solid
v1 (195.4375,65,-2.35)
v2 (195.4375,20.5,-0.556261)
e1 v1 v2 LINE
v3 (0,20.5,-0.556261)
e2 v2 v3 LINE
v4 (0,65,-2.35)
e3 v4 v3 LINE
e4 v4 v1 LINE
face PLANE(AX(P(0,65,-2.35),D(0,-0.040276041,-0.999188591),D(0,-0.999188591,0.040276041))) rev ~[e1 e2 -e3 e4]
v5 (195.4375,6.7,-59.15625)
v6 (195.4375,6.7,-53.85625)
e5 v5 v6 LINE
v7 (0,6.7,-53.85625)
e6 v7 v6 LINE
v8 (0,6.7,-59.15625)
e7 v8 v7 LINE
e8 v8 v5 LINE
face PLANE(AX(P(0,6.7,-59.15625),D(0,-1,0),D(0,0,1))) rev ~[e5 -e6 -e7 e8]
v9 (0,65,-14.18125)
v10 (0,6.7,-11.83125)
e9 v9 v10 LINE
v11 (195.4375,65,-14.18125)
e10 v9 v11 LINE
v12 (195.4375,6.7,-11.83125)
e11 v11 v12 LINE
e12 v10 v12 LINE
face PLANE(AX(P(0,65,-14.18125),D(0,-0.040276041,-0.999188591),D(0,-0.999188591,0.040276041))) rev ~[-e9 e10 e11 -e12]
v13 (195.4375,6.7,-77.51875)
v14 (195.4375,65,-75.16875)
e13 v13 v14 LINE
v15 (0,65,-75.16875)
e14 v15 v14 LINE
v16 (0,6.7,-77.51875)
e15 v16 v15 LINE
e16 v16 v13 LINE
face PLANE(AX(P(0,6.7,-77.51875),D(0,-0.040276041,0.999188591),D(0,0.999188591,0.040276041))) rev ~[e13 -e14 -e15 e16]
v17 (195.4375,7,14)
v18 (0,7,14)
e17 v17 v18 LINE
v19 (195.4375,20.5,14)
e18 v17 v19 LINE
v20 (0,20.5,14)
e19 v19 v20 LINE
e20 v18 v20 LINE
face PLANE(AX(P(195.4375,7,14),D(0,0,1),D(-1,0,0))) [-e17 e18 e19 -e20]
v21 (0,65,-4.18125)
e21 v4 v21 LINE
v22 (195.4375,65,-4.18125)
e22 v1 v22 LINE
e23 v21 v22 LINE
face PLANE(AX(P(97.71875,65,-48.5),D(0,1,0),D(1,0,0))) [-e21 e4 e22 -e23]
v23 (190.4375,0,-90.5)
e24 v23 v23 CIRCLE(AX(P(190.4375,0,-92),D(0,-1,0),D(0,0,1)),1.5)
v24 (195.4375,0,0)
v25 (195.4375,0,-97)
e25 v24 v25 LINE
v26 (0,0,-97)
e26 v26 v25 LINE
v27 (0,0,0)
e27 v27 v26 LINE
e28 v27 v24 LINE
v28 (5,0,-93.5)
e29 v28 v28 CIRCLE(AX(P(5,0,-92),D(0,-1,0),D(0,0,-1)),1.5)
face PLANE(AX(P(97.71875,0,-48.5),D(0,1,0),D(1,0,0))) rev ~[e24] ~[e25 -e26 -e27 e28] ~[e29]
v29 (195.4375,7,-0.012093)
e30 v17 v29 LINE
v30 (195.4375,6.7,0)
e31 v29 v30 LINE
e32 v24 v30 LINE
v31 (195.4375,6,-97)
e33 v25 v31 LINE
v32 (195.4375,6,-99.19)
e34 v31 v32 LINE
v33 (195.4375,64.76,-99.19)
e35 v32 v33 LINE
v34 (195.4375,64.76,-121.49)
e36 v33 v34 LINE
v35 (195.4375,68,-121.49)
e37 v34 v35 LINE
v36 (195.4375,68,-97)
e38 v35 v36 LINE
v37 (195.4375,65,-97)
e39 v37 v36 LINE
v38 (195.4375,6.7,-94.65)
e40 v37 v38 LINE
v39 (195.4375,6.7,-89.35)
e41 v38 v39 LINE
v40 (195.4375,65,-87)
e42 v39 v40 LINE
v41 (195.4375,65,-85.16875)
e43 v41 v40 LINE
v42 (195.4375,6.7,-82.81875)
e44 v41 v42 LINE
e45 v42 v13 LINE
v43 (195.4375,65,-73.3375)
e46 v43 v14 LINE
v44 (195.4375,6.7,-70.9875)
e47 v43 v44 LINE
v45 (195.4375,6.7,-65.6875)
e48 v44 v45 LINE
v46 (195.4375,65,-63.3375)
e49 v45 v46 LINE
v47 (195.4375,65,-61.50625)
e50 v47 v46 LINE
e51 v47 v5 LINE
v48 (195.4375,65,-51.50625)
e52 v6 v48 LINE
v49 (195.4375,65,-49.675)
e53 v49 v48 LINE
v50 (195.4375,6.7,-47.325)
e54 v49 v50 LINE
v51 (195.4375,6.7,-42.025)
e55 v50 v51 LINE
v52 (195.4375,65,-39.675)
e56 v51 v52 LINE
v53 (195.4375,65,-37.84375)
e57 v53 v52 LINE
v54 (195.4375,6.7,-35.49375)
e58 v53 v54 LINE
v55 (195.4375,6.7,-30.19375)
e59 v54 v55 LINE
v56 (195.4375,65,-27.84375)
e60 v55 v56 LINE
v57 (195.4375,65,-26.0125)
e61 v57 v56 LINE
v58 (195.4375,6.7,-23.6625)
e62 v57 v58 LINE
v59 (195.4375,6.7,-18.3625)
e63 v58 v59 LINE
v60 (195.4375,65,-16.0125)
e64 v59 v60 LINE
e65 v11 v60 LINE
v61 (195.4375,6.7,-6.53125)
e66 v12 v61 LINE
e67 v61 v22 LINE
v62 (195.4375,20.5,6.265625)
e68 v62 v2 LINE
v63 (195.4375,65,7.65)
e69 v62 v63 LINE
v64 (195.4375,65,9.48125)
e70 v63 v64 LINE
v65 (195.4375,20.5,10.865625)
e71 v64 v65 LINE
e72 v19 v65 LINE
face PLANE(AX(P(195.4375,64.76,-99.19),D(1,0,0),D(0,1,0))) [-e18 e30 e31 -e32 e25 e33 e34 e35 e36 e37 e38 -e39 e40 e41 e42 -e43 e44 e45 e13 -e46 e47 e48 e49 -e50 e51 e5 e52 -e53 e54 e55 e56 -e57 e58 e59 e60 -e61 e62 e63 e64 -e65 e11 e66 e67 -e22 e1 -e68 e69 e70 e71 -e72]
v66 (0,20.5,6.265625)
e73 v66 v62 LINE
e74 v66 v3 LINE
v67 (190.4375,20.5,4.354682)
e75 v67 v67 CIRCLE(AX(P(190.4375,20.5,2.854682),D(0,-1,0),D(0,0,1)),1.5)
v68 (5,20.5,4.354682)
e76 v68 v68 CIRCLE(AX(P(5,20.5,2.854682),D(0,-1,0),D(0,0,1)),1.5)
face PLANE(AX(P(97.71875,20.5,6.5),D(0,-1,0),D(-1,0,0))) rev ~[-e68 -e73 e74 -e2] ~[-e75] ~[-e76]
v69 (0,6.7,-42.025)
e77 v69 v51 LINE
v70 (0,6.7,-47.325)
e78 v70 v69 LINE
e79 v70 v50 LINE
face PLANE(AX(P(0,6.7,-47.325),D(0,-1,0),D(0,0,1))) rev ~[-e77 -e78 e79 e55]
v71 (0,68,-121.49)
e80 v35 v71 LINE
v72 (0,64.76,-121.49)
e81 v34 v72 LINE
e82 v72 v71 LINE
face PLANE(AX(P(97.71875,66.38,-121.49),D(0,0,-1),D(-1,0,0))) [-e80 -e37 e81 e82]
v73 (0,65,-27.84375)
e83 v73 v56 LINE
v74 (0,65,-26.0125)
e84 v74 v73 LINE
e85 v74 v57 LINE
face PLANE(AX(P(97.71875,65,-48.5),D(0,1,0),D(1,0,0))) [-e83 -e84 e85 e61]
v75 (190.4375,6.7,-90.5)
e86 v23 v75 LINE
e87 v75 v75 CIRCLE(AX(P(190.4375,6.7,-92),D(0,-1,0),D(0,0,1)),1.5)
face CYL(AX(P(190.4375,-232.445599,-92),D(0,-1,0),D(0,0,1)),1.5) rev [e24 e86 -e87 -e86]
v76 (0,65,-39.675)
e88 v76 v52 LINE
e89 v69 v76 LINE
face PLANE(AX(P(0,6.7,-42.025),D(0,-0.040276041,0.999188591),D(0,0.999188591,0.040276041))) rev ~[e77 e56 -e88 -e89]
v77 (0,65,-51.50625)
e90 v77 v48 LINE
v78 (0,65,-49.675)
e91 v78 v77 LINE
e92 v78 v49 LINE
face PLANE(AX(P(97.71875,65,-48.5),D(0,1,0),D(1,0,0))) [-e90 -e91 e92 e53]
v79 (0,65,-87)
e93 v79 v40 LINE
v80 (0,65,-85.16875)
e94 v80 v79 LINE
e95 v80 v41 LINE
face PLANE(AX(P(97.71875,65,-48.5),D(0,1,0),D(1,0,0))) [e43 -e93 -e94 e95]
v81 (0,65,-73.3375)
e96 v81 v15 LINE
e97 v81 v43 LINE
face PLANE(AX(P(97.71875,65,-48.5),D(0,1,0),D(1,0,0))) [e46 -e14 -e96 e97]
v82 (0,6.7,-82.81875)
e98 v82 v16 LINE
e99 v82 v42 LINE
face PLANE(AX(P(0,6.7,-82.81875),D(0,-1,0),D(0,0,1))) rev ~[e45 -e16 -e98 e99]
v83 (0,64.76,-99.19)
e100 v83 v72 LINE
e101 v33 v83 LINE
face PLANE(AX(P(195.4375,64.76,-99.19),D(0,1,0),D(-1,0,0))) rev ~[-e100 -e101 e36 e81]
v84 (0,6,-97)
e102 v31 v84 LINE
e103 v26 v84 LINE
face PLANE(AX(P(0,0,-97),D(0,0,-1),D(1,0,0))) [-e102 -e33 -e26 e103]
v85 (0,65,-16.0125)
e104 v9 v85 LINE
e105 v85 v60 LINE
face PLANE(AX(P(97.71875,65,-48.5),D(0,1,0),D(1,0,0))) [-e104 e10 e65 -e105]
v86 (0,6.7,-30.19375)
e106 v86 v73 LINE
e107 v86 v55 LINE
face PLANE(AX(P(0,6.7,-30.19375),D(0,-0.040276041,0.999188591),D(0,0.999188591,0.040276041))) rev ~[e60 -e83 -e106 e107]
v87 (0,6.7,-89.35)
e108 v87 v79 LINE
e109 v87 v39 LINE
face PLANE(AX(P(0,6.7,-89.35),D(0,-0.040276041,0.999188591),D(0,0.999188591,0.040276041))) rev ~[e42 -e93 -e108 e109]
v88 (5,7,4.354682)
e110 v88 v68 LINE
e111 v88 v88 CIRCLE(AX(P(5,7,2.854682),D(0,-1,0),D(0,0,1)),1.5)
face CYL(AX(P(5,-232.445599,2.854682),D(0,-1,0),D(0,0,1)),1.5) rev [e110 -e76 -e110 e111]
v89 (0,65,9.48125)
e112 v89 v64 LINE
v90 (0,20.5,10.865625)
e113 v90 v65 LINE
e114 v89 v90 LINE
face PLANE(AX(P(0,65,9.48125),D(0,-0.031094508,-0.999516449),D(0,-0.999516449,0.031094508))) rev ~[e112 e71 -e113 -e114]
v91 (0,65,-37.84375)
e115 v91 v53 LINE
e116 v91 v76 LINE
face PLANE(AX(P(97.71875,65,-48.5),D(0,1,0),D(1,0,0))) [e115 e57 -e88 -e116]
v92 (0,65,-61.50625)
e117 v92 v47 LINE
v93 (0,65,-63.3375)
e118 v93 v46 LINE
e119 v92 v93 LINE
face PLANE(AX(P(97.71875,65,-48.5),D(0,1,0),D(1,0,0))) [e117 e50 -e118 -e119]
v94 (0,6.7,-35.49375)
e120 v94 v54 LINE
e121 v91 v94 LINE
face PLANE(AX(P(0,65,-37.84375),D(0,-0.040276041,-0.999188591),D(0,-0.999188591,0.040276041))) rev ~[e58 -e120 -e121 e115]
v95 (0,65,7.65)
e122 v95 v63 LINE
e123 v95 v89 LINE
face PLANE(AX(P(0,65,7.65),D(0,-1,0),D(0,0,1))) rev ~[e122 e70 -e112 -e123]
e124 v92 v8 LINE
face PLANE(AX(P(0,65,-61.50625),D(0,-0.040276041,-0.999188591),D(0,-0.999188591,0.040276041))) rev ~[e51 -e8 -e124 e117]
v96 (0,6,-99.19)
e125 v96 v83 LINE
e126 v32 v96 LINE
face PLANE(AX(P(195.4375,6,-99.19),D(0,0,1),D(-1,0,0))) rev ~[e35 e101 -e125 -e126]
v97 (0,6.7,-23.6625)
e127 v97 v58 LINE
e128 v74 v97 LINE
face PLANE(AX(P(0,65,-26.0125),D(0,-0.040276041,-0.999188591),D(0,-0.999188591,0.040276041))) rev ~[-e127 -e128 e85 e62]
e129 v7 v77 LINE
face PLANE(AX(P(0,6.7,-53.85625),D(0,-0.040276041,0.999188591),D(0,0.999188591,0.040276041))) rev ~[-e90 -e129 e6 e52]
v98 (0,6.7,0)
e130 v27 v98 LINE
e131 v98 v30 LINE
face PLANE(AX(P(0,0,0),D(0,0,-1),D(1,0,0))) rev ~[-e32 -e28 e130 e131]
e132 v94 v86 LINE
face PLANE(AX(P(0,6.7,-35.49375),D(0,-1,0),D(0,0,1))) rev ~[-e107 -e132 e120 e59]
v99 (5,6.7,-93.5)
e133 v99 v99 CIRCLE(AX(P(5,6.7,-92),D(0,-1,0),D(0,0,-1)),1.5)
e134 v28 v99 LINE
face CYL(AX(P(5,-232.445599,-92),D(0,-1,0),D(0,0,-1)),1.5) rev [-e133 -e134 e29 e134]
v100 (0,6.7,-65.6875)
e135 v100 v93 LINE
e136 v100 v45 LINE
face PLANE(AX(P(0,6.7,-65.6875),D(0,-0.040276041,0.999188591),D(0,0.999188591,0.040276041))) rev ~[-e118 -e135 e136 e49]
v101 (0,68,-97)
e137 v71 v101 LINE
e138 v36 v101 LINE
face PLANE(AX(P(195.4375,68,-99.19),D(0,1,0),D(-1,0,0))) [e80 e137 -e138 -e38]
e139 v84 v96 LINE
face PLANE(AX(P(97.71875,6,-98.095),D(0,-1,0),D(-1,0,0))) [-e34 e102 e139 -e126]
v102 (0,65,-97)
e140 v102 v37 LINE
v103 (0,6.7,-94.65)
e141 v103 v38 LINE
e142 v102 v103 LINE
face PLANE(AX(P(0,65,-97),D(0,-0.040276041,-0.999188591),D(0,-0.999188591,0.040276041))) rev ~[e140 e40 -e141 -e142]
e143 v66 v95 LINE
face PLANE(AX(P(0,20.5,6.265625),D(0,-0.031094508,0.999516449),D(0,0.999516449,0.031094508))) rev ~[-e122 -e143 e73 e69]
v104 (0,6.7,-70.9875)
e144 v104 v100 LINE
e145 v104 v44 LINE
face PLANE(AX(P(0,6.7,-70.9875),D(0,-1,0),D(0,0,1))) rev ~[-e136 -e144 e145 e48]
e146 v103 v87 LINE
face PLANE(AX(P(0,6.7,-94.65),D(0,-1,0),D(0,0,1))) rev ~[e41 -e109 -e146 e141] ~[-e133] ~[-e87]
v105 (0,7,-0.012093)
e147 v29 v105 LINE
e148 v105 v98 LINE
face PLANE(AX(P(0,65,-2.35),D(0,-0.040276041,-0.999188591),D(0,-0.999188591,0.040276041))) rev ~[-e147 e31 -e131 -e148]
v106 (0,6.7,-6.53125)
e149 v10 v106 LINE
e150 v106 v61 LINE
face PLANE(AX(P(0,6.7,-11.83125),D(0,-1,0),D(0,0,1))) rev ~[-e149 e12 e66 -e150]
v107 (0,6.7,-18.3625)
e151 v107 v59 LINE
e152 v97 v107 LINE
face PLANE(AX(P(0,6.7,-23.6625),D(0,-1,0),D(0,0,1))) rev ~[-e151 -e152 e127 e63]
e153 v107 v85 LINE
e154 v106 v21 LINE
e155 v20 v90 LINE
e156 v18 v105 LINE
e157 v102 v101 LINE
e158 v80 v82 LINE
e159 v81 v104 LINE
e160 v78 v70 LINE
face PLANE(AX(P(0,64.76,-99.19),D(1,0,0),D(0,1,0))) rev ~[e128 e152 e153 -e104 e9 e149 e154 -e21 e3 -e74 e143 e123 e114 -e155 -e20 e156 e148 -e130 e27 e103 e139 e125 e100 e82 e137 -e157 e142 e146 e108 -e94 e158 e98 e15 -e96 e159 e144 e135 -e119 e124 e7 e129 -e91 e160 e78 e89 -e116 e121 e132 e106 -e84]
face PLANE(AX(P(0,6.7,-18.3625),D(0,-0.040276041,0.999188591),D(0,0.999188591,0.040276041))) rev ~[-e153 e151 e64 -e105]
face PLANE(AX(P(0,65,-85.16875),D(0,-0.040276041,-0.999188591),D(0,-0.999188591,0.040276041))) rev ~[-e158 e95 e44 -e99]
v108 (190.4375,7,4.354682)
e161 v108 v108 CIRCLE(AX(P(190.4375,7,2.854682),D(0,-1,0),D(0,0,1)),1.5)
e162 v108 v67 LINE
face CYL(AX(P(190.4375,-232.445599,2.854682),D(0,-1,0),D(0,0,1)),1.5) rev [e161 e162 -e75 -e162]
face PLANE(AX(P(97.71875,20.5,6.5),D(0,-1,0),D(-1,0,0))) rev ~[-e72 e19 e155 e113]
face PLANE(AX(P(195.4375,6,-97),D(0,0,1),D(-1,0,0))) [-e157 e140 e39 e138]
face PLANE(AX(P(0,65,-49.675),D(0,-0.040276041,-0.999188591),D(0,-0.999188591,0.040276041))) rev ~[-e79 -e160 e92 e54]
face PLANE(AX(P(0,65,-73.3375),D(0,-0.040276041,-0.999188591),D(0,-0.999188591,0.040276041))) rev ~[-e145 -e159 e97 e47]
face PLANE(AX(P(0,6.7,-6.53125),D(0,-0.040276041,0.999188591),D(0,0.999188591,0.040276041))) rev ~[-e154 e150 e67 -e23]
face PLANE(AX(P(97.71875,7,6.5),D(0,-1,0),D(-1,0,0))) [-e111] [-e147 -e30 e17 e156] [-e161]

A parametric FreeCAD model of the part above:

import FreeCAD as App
import Part
import Sketcher
from FreeCAD import Vector
Q = App.Units.Quantity


def add_polygon(sketch, points):
    """Adds a closed chain of lines whose ends are joined by coincident constraints."""
    first, n = sketch.GeometryCount, len(points)
    for a, b in zip(points, points[1:] + points[:1]):
        sketch.addGeometry(Part.LineSegment(App.Vector(*a, 0), App.Vector(*b, 0)), False)
    for i in range(n):
        sketch.addConstraint(Sketcher.Constraint("Coincident", first + i, 2, first + (i + 1) % n, 1))

doc = App.newDocument("Part")
body = doc.addObject("PartDesign::Body", "Body")

sketch1 = body.newObject("Sketcher::SketchObject", "Sketch")
sketch1.AttachmentSupport = (doc.getObject("XZ_Plane"), [""])
sketch1.MapMode = "FlatFace"
add_polygon(sketch1, [(0, -97), (0, 0), (195.4375, 0), (195.4375, -97)])
sketch1.addConstraint([
    Sketcher.Constraint("Vertical", 0),
    Sketcher.Constraint("Horizontal", 1),
    Sketcher.Constraint("Vertical", 2),
    Sketcher.Constraint("Horizontal", 3),
    Sketcher.Constraint("Coincident", 0, 2, -1, 1),
    Sketcher.Constraint("DistanceY", 0, 1, 0, 2, Q("97 mm")),
    Sketcher.Constraint("DistanceX", 1, 1, 1, 2, Q("195.4375 mm")),
])
pad1 = body.newObject("PartDesign::Pad", "Pad")
pad1.Profile = sketch1
pad1.Length = 65
pad1.Reversed = True

sketch2 = body.newObject("Sketcher::SketchObject", "Sketch001")
sketch2.AttachmentSupport = (doc.getObject("YZ_Plane"), [""])
sketch2.MapMode = "FlatFace"
add_polygon(sketch2, [(65, -97), (6.7, -94.65), (6.7, -89.35), (65, -87)])
add_polygon(sketch2, [(65, -75.16875), (65, -85.16875), (6.7, -82.81875), (6.7, -77.51875)])
add_polygon(sketch2, [(65, -63.3375), (65, -73.3375), (6.7, -70.9875), (6.7, -65.6875)])
add_polygon(sketch2, [(65, -51.50625), (65, -61.50625), (6.7, -59.15625), (6.7, -53.85625)])
add_polygon(sketch2, [(65, -39.675), (65, -49.675), (6.7, -47.325), (6.7, -42.025)])
add_polygon(sketch2, [(65, -27.84375), (65, -37.84375), (6.7, -35.49375), (6.7, -30.19375)])
add_polygon(sketch2, [(65, -16.0125), (65, -26.0125), (6.7, -23.6625), (6.7, -18.3625)])
add_polygon(sketch2, [(65, -4.18125), (65, -14.18125), (6.7, -11.83125), (6.7, -6.53125)])
add_polygon(sketch2, [(65, 7.65), (65, -2.35), (6.7, 0), (6.7, 5.3)])
sketch2.addConstraint([
    Sketcher.Constraint("Vertical", 1),
    Sketcher.Constraint("Vertical", 3),
    Sketcher.Constraint("Vertical", 4),
    Sketcher.Constraint("Vertical", 6),
    Sketcher.Constraint("Vertical", 8),
    Sketcher.Constraint("Vertical", 10),
    Sketcher.Constraint("Vertical", 12),
    Sketcher.Constraint("Vertical", 14),
    Sketcher.Constraint("Vertical", 16),
    Sketcher.Constraint("Vertical", 18),
    Sketcher.Constraint("Vertical", 20),
    Sketcher.Constraint("Vertical", 22),
    Sketcher.Constraint("Vertical", 24),
    Sketcher.Constraint("Vertical", 26),
    Sketcher.Constraint("Vertical", 28),
    Sketcher.Constraint("Vertical", 30),
    Sketcher.Constraint("Vertical", 32),
    Sketcher.Constraint("Vertical", 34),
    Sketcher.Constraint("PointOnObject", 33, 2, -1),
    Sketcher.Constraint("Parallel", 0, 5),
    Sketcher.Constraint("Parallel", 2, 7),
    Sketcher.Constraint("Parallel", 5, 9),
    Sketcher.Constraint("Parallel", 7, 11),
    Sketcher.Constraint("Parallel", 9, 13),
    Sketcher.Constraint("Parallel", 11, 15),
    Sketcher.Constraint("Parallel", 13, 17),
    Sketcher.Constraint("Parallel", 15, 19),
    Sketcher.Constraint("Parallel", 17, 21),
    Sketcher.Constraint("Parallel", 19, 23),
    Sketcher.Constraint("Parallel", 21, 25),
    Sketcher.Constraint("Parallel", 23, 27),
    Sketcher.Constraint("Parallel", 25, 29),
    Sketcher.Constraint("Parallel", 27, 31),
    Sketcher.Constraint("Parallel", 29, 33),
    Sketcher.Constraint("Parallel", 31, 35),
    Sketcher.Constraint("Vertical", 3, 2, 4, 2),
    Sketcher.Constraint("Vertical", 1, 2, 5, 2),
    Sketcher.Constraint("Vertical", 7, 2, 8, 2),
    Sketcher.Constraint("Vertical", 6, 2, 9, 2),
    Sketcher.Constraint("Vertical", 11, 2, 12, 2),
    Sketcher.Constraint("Vertical", 10, 2, 13, 2),
    Sketcher.Constraint("Vertical", 15, 2, 16, 2),
    Sketcher.Constraint("Vertical", 14, 2, 17, 2),
    Sketcher.Constraint("Vertical", 19, 2, 20, 2),
    Sketcher.Constraint("Vertical", 18, 2, 21, 2),
    Sketcher.Constraint("Vertical", 23, 2, 24, 2),
    Sketcher.Constraint("Vertical", 22, 2, 25, 2),
    Sketcher.Constraint("Vertical", 27, 2, 28, 2),
    Sketcher.Constraint("Vertical", 26, 2, 29, 2),
    Sketcher.Constraint("Vertical", 31, 2, 32, 2),
    Sketcher.Constraint("Vertical", 30, 2, 33, 2),
    Sketcher.Constraint("Equal", 3, 4),
    Sketcher.Constraint("Equal", 4, 8),
    Sketcher.Constraint("Equal", 8, 12),
    Sketcher.Constraint("Equal", 12, 16),
    Sketcher.Constraint("Equal", 16, 20),
    Sketcher.Constraint("Equal", 20, 24),
    Sketcher.Constraint("Equal", 24, 28),
    Sketcher.Constraint("Equal", 28, 32),
    Sketcher.Constraint("Equal", 0, 2),
    Sketcher.Constraint("DistanceY", 3, 2, 3, 1, Q("10 mm")),
    Sketcher.Constraint("DistanceY", 1, 1, 1, 2, Q("5.3 mm")),
    Sketcher.Constraint("DistanceX", -1, 1, 2, 2, Q("65 mm")),
    Sketcher.Constraint("DistanceY", 2, 2, -1, 1, Q("87 mm")),
    Sketcher.Constraint("DistanceX", -1, 1, 0, 2, Q("6.7 mm")),
    Sketcher.Constraint("DistanceY", 16, 2, -1, 1, Q("49.675 mm")),
    Sketcher.Constraint("DistanceY", 8, 2, -1, 1, Q("73.3375 mm")),
    Sketcher.Constraint("DistanceY", 24, 2, -1, 1, Q("26.0125 mm")),
    Sketcher.Constraint("DistanceY", 7, 2, 12, 2, Q("13.6625 mm")),
    Sketcher.Constraint("DistanceY", 15, 2, 20, 2, Q("13.6625 mm")),
    Sketcher.Constraint("DistanceY", 23, 2, 28, 2, Q("13.6625 mm")),
    Sketcher.Constraint("DistanceY", 4, 2, -1, 1, Q("85.16875 mm")),
])
pocket1 = body.newObject("PartDesign::Pocket", "Pocket")
pocket1.Profile = sketch2
pocket1.Type = "ThroughAll"
pocket1.Reversed = True

sketch3 = body.newObject("Sketcher::SketchObject", "Sketch002")
sketch3.AttachmentSupport = (doc.getObject("XZ_Plane"), [""])
sketch3.MapMode = "FlatFace"
sketch3.AttachmentOffset = App.Placement(Vector(0, 0, -7), App.Rotation())
add_polygon(sketch3, [(195.4375, -1), (195.4375, 14), (0, 14), (0, -1)])
sketch3.addConstraint([
    Sketcher.Constraint("Vertical", 0),
    Sketcher.Constraint("Horizontal", 1),
    Sketcher.Constraint("Vertical", 2),
    Sketcher.Constraint("Horizontal", 3),
    Sketcher.Constraint("PointOnObject", 1, 2, -2),
    Sketcher.Constraint("DistanceY", 0, 1, 0, 2, Q("15 mm")),
    Sketcher.Constraint("DistanceY", -1, 1, 0, 2, Q("14 mm")),
    Sketcher.Constraint("DistanceX", 1, 2, 1, 1, Q("195.4375 mm")),
])
pad2 = body.newObject("PartDesign::Pad", "Pad001")
pad2.Profile = sketch3
pad2.Length = 13.5
pad2.Reversed = True

sketch4 = body.newObject("Sketcher::SketchObject", "Sketch003")
sketch4.AttachmentSupport = (doc.getObject("YZ_Plane"), [""])
sketch4.MapMode = "FlatFace"
add_polygon(sketch4, [(65, 7.65), (20.5, 6.265625), (20.5, 10.865625), (65, 9.48125)])
sketch4.addConstraint([
    Sketcher.Constraint("Vertical", 1),
    Sketcher.Constraint("Vertical", 3),
    Sketcher.Constraint("Equal", 0, 2),
    Sketcher.Constraint("DistanceY", 1, 1, 1, 2, Q("4.6 mm")),
    Sketcher.Constraint("DistanceX", -1, 1, 2, 2, Q("65 mm")),
    Sketcher.Constraint("DistanceX", -1, 1, 0, 2, Q("20.5 mm")),
    Sketcher.Constraint("DistanceY", -1, 1, 3, 2, Q("7.65 mm")),
    Sketcher.Constraint("DistanceY", 3, 2, 3, 1, Q("1.83125 mm")),
])
pad3 = body.newObject("PartDesign::Pad", "Pad002")
pad3.Profile = sketch4
pad3.Length = 195.4375

sketch5 = body.newObject("Sketcher::SketchObject", "Sketch004")
sketch5.AttachmentSupport = (doc.getObject("XZ_Plane"), [""])
sketch5.MapMode = "FlatFace"
sketch5.AttachmentOffset = App.Placement(Vector(0, 0, -6), App.Rotation())
add_polygon(sketch5, [(195.4375, -99.19), (195.4375, -97), (0, -97), (0, -99.19)])
sketch5.addConstraint([
    Sketcher.Constraint("Vertical", 0),
    Sketcher.Constraint("Horizontal", 1),
    Sketcher.Constraint("Vertical", 2),
    Sketcher.Constraint("Horizontal", 3),
    Sketcher.Constraint("PointOnObject", 1, 2, -2),
    Sketcher.Constraint("DistanceY", 0, 2, -1, 1, Q("97 mm")),
    Sketcher.Constraint("DistanceY", 0, 1, 0, 2, Q("2.19 mm")),
    Sketcher.Constraint("DistanceX", 1, 2, 1, 1, Q("195.4375 mm")),
])
pad4 = body.newObject("PartDesign::Pad", "Pad003")
pad4.Profile = sketch5
pad4.Length = 62
pad4.Reversed = True

sketch6 = body.newObject("Sketcher::SketchObject", "Sketch005")
sketch6.AttachmentSupport = (doc.getObject("XY_Plane"), [""])
sketch6.MapMode = "FlatFace"
sketch6.AttachmentOffset = App.Placement(Vector(0, 0, -99.19), App.Rotation())
add_polygon(sketch6, [(195.4375, 68), (195.4375, 64.76), (0, 64.76), (0, 68)])
sketch6.addConstraint([
    Sketcher.Constraint("Vertical", 0),
    Sketcher.Constraint("Horizontal", 1),
    Sketcher.Constraint("Vertical", 2),
    Sketcher.Constraint("Horizontal", 3),
    Sketcher.Constraint("PointOnObject", 1, 2, -2),
    Sketcher.Constraint("DistanceY", -1, 1, 2, 2, Q("68 mm")),
    Sketcher.Constraint("DistanceY", 0, 2, 0, 1, Q("3.24 mm")),
    Sketcher.Constraint("DistanceX", 1, 2, 1, 1, Q("195.4375 mm")),
])
pad5 = body.newObject("PartDesign::Pad", "Pad004")
pad5.Profile = sketch6
pad5.Length = 22.3
pad5.Reversed = True

sketch7 = body.newObject("Sketcher::SketchObject", "Sketch006")
sketch7.AttachmentSupport = (doc.getObject("XZ_Plane"), [""])
sketch7.MapMode = "FlatFace"
sketch7.AttachmentOffset = App.Placement(Vector(0, 0, -6.7), App.Rotation())
sketch7.addGeometry([
    Part.Circle(Vector(190.4375, -92, 0), Vector(0, 0, 1), 1.5),
    Part.Circle(Vector(190.4375, 2.854682, 0), Vector(0, 0, 1), 1.5),
    Part.Circle(Vector(5, -92, 0), Vector(0, 0, 1), 1.5),
    Part.Circle(Vector(5, 2.854682, 0), Vector(0, 0, 1), 1.5),
], False)
sketch7.addConstraint([
    Sketcher.Constraint("Equal", 0, 1),
    Sketcher.Constraint("Equal", 1, 2),
    Sketcher.Constraint("Equal", 2, 3),
    Sketcher.Constraint("Horizontal", 0, 3, 2, 3),
    Sketcher.Constraint("Horizontal", 1, 3, 3, 3),
    Sketcher.Constraint("Vertical", 0, 3, 1, 3),
    Sketcher.Constraint("Vertical", 2, 3, 3, 3),
    Sketcher.Constraint("Diameter", 0, Q("3 mm")),
    Sketcher.Constraint("DistanceY", 0, 3, -1, 1, Q("92 mm")),
    Sketcher.Constraint("DistanceX", -1, 1, 2, 3, Q("5 mm")),
    Sketcher.Constraint("DistanceX", -1, 1, 0, 3, Q("190.4375 mm")),
    Sketcher.Constraint("DistanceY", -1, 1, 1, 3, Q("2.854682 mm")),
])
pocket2 = body.newObject("PartDesign::Pocket", "Pocket001")
pocket2.Profile = sketch7
pocket2.Type = "ThroughAll"
pocket2.Midplane = True

doc.recompute()
